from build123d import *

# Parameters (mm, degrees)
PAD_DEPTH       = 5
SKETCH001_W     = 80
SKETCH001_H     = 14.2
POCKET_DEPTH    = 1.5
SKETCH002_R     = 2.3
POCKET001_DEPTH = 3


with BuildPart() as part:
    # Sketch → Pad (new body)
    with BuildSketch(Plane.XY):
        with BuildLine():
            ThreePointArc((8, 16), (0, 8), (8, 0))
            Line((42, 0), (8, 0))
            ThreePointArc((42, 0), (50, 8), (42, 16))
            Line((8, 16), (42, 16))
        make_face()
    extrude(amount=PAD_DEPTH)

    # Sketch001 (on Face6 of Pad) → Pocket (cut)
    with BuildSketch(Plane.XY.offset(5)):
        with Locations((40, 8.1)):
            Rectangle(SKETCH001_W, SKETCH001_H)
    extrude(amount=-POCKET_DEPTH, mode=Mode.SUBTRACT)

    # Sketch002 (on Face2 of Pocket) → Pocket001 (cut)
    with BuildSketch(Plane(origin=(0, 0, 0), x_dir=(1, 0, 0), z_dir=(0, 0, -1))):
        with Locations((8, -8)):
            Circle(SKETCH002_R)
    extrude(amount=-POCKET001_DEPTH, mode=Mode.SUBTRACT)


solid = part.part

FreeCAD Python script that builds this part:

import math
import FreeCAD as App
import Part
import Sketcher

V = App.Vector


def add_polygon(sketch, points):
    """Adds a closed chain of lines whose ends are joined by coincident constraints."""
    first, n = sketch.GeometryCount, len(points)
    for a, b in zip(points, points[1:] + points[:1]):
        sketch.addGeometry(Part.LineSegment(App.Vector(*a, 0), App.Vector(*b, 0)), False)
    for i in range(n):
        sketch.addConstraint(Sketcher.Constraint("Coincident", first + i, 2, first + (i + 1) % n, 1))

doc = App.newDocument("Part")
body = doc.addObject("PartDesign::Body", "Body")

# Sketch on XY plane
sketch1 = body.newObject("Sketcher::SketchObject", "Sketch")
sketch1.AttachmentSupport = (doc.getObject("XY_Plane"), [""])
sketch1.MapMode = "FlatFace"
sketch1.addGeometry([
    Part.ArcOfCircle(Part.Circle(V(8, 8, 0), V(0, 0, 1), 8), math.radians(90), math.radians(270)),
    Part.LineSegment(V(8, 0, 0), V(42, 0, 0)),
    Part.ArcOfCircle(Part.Circle(V(42, 8, 0), V(0, 0, 1), 8), math.radians(-90), math.radians(90)),
    Part.LineSegment(V(42, 16, 0), V(8, 16, 0)),
], False)
sketch1.addConstraint([
    Sketcher.Constraint("Tangent", 0, 2, 1, 1),
    Sketcher.Constraint("Tangent", 1, 2, 2, 1),
    Sketcher.Constraint("Tangent", 2, 2, 3, 1),
    Sketcher.Constraint("Tangent", 3, 2, 0, 1),
    Sketcher.Constraint("Horizontal", 1),
    Sketcher.Constraint("Horizontal", 3),
    Sketcher.Constraint("PointOnObject", 0, 2, -1),
    Sketcher.Constraint("Radius", 0, 8.0),
    Sketcher.Constraint("DistanceX", 1, 1, 1, 2, 34.0),
    Sketcher.Constraint("DistanceX", -1, 1, 0, 3, 8.0),
])
pad1 = body.newObject("PartDesign::Pad", "Pad")
pad1.Profile = sketch1
pad1.Length = 5

# Sketch on XY plane
sketch2 = body.newObject("Sketcher::SketchObject", "Sketch001")
sketch2.AttachmentSupport = (doc.getObject("XY_Plane"), [""])
sketch2.MapMode = "FlatFace"
sketch2.AttachmentOffset = App.Placement(V(0, 0, 5), App.Rotation())
add_polygon(sketch2, [(0, 15), (0, 1), (80, 1), (80, 15)])  # lines 0-3
sketch2.addConstraint([
    Sketcher.Constraint("Vertical", 0),
    Sketcher.Constraint("Horizontal", 1),
    Sketcher.Constraint("Vertical", 2),
    Sketcher.Constraint("Horizontal", 3),
    Sketcher.Constraint("PointOnObject", 0, 2, -2),
    Sketcher.Constraint("DistanceX", 1, 1, 1, 2, 80.0),
    Sketcher.Constraint("DistanceY", 0, 2, 0, 1, 14.2),
    Sketcher.Constraint("DistanceY", -1, 1, 0, 2, 1.0),
])
pocket1 = body.newObject("PartDesign::Pocket", "Pocket")
pocket1.Profile = sketch2
pocket1.Length = 1.5

# Sketch on XY plane
sketch3 = body.newObject("Sketcher::SketchObject", "Sketch002")
sketch3.AttachmentSupport = (doc.getObject("XY_Plane"), [""])
sketch3.MapMode = "FlatFace"
sketch3.addGeometry(Part.Circle(V(8, 8, 0), V(0, 0, 1), 2.3), False)
sketch3.addConstraint([
    Sketcher.Constraint("Diameter", 0, 4.6),
    Sketcher.Constraint("DistanceX", -1, 1, 0, 3, 8.0),
    Sketcher.Constraint("DistanceY", -1, 1, 0, 3, 8.0),
])
pocket2 = body.newObject("PartDesign::Pocket", "Pocket001")
pocket2.Profile = sketch3
pocket2.Length = 3
pocket2.Reversed = True

doc.recompute()
